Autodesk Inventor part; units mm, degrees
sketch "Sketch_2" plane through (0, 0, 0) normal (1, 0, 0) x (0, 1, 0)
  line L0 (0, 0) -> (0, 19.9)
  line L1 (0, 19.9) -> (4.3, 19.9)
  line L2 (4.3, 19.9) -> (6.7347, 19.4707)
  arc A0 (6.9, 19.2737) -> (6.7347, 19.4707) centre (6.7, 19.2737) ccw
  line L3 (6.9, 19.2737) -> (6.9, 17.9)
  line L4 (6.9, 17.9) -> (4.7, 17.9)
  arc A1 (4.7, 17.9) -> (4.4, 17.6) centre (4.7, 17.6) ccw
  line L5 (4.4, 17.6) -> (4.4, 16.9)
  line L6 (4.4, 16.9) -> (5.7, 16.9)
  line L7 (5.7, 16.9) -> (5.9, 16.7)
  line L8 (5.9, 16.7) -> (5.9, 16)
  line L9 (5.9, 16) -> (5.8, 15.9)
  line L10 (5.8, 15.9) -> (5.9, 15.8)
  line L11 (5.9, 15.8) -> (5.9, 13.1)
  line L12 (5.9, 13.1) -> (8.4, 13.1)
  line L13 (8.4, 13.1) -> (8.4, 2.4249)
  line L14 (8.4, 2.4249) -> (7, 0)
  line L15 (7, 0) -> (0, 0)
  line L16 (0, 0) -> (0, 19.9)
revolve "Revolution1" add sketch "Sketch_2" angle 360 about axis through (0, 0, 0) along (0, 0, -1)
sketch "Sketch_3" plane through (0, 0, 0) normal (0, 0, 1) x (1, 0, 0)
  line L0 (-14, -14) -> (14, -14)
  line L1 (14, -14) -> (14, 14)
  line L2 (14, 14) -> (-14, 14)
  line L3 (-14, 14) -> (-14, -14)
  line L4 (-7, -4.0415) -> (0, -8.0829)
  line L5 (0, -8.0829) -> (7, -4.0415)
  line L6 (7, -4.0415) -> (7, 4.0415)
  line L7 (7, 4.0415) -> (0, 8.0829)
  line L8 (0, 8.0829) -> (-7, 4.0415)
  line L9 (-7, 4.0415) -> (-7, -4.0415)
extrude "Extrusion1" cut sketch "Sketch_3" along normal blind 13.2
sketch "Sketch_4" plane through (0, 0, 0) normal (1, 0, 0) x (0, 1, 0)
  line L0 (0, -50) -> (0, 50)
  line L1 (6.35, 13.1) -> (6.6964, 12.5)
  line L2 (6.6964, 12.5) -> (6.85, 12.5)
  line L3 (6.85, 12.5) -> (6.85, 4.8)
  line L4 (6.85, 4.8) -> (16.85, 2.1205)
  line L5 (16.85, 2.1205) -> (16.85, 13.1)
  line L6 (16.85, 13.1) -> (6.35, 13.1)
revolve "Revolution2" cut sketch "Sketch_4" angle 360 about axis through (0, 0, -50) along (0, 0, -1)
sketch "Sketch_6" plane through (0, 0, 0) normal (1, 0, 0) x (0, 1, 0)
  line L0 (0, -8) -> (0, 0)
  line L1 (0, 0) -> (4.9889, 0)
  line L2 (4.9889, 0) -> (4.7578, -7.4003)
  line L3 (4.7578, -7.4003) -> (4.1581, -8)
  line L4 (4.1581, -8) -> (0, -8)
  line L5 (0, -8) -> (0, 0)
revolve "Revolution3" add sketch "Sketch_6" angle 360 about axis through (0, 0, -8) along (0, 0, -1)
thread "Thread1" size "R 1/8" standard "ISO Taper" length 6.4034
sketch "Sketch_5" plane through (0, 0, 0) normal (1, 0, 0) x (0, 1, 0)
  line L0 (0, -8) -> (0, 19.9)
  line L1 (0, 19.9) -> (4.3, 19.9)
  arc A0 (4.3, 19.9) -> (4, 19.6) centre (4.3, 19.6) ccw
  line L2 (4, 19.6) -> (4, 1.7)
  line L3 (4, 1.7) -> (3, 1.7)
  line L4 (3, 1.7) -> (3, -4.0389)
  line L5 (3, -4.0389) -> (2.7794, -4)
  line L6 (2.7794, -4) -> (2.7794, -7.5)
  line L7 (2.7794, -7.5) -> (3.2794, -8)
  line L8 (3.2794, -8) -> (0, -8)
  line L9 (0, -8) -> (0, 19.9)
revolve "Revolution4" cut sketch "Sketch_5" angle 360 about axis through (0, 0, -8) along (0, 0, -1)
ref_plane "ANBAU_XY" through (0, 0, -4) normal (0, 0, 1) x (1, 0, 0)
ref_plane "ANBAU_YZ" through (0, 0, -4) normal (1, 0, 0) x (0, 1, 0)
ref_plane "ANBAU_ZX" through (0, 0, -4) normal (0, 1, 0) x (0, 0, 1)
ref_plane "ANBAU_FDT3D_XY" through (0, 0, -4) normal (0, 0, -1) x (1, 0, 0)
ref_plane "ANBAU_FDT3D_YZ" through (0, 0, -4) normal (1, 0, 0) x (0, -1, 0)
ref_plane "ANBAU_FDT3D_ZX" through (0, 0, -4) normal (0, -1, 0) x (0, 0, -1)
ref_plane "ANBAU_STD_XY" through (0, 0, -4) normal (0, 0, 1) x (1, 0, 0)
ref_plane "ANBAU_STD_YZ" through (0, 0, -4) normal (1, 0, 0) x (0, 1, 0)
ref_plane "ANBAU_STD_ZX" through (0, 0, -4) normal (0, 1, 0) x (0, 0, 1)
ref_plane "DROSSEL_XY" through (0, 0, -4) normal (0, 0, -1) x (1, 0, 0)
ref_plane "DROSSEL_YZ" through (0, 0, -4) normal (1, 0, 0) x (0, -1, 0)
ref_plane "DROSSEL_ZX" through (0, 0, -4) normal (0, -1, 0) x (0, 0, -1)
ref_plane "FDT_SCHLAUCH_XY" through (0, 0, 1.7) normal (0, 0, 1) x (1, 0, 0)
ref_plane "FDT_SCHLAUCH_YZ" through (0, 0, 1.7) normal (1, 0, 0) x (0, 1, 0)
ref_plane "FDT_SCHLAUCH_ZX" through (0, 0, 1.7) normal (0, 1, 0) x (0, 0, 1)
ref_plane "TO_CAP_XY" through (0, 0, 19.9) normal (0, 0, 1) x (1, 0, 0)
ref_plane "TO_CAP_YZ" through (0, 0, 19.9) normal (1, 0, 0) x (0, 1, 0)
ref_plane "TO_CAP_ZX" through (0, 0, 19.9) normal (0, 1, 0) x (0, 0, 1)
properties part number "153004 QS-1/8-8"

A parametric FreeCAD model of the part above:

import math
import FreeCAD as App
import Part
import Sketcher
Q = App.Units.Quantity


def add_polygon(sketch, points):
    """Adds a closed chain of lines whose ends are joined by coincident constraints."""
    first, n = sketch.GeometryCount, len(points)
    for a, b in zip(points, points[1:] + points[:1]):
        sketch.addGeometry(Part.LineSegment(App.Vector(*a, 0), App.Vector(*b, 0)), False)
    for i in range(n):
        sketch.addConstraint(Sketcher.Constraint("Coincident", first + i, 2, first + (i + 1) % n, 1))

doc = App.newDocument("Part")
body = doc.addObject("PartDesign::Body", "Body")

# Sketch on YZ plane
sketch1 = body.newObject("Sketcher::SketchObject", "Sketch")
sketch1.AttachmentSupport = (doc.getObject("YZ_Plane"), [""])
sketch1.MapMode = "FlatFace"
sketch1.addGeometry([
    Part.LineSegment(App.Vector(0, 19.9, 0), App.Vector(0, 0, 0)),  # 0
    Part.LineSegment(App.Vector(0, 0, 0), App.Vector(7, 0, 0)),  # 1
    Part.LineSegment(App.Vector(7, 0, 0), App.Vector(8.4, 2.42, 0)),  # 2
    Part.LineSegment(App.Vector(8.4, 2.42, 0), App.Vector(8.4, 13.1, 0)),  # 3
    Part.LineSegment(App.Vector(8.4, 13.1, 0), App.Vector(5.9, 13.1, 0)),  # 4
    Part.LineSegment(App.Vector(5.9, 13.1, 0), App.Vector(5.9, 15.8, 0)),  # 5
    Part.LineSegment(App.Vector(5.9, 15.8, 0), App.Vector(5.8, 15.9, 0)),  # 6
    Part.LineSegment(App.Vector(5.8, 15.9, 0), App.Vector(5.9, 16, 0)),  # 7
    Part.LineSegment(App.Vector(5.9, 16, 0), App.Vector(5.9, 16.7, 0)),  # 8
    Part.LineSegment(App.Vector(5.9, 16.7, 0), App.Vector(5.7, 16.9, 0)),  # 9
    Part.LineSegment(App.Vector(5.7, 16.9, 0), App.Vector(4.4, 16.9, 0)),  # 10
    Part.LineSegment(App.Vector(4.4, 16.9, 0), App.Vector(4.4, 17.6, 0)),  # 11
    Part.ArcOfCircle(Part.Circle(App.Vector(4.7, 17.6, 0), App.Vector(0, 0, 1), 0.3), math.radians(90), math.radians(180)),  # 12
    Part.LineSegment(App.Vector(4.7, 17.9, 0), App.Vector(6.9, 17.9, 0)),  # 13
    Part.LineSegment(App.Vector(6.9, 17.9, 0), App.Vector(6.9, 19.27, 0)),  # 14
    Part.ArcOfCircle(Part.Circle(App.Vector(6.7, 19.27, 0), App.Vector(0, 0, 1), 0.2), math.radians(0), math.radians(80)),  # 15
    Part.LineSegment(App.Vector(6.73, 19.47, 0), App.Vector(4.3, 19.9, 0)),  # 16
    Part.LineSegment(App.Vector(4.3, 19.9, 0), App.Vector(0, 19.9, 0)),  # 17
], False)
sketch1.addConstraint([
    Sketcher.Constraint("Coincident", 0, 2, 1, 1),
    Sketcher.Constraint("Coincident", 1, 2, 2, 1),
    Sketcher.Constraint("Coincident", 2, 2, 3, 1),
    Sketcher.Constraint("Coincident", 3, 2, 4, 1),
    Sketcher.Constraint("Coincident", 4, 2, 5, 1),
    Sketcher.Constraint("Coincident", 5, 2, 6, 1),
    Sketcher.Constraint("Coincident", 6, 2, 7, 1),
    Sketcher.Constraint("Coincident", 7, 2, 8, 1),
    Sketcher.Constraint("Coincident", 8, 2, 9, 1),
    Sketcher.Constraint("Coincident", 9, 2, 10, 1),
    Sketcher.Constraint("Coincident", 10, 2, 11, 1),
    Sketcher.Constraint("Tangent", 11, 2, 12, 2),
    Sketcher.Constraint("Tangent", 12, 1, 13, 1),
    Sketcher.Constraint("Coincident", 13, 2, 14, 1),
    Sketcher.Constraint("Tangent", 14, 2, 15, 1),
    Sketcher.Constraint("Tangent", 15, 2, 16, 1),
    Sketcher.Constraint("Coincident", 16, 2, 17, 1),
    Sketcher.Constraint("Coincident", 17, 2, 0, 1),
    Sketcher.Constraint("Vertical", 0),
    Sketcher.Constraint("Horizontal", 1),
    Sketcher.Constraint("Vertical", 3),
    Sketcher.Constraint("Horizontal", 4),
    Sketcher.Constraint("Vertical", 5),
    Sketcher.Constraint("Vertical", 8),
    Sketcher.Constraint("Horizontal", 10),
    Sketcher.Constraint("Vertical", 11),
    Sketcher.Constraint("Horizontal", 13),
    Sketcher.Constraint("Vertical", 14),
    Sketcher.Constraint("Horizontal", 17),
    Sketcher.Constraint("Coincident", 0, 2, -1, 1),
    Sketcher.Constraint("Perpendicular", 6, 7),
    Sketcher.Constraint("Perpendicular", 7, 9),
    Sketcher.Constraint("Vertical", 5, 2, 7, 2),
    Sketcher.Constraint("Equal", 8, 11),
    Sketcher.Constraint("Equal", 6, 7),
    Sketcher.Constraint("Radius", 12, 0.3),
    Sketcher.Constraint("Radius", 15, 0.2),
    Sketcher.Constraint("DistanceX", 1, 1, 1, 2, 7.0),
    Sketcher.Constraint("Angle", 2, Q("60.0003 deg")),
    Sketcher.Constraint("Angle", 16, Q("170 deg")),
    Sketcher.Constraint("DistanceX", 4, 2, 4, 1, 2.5),
    Sketcher.Constraint("DistanceX", 10, 2, 10, 1, 1.3),
    Sketcher.Constraint("DistanceX", 13, 1, 13, 2, 2.2),
    Sketcher.Constraint("DistanceX", 17, 2, 17, 1, 4.3),
    Sketcher.Constraint("DistanceY", 0, 2, 0, 1, 19.9),
    Sketcher.Constraint("DistanceY", 5, 1, 5, 2, 2.7),
    Sketcher.Constraint("DistanceY", 8, 1, 8, 2, 0.7),
    Sketcher.Constraint("DistanceY", -1, 1, 7, 2, 16.0),
    Sketcher.Constraint("DistanceY", 6, 2, 9, 2, 1.0),
    Sketcher.Constraint("DistanceX", 8, 2, 13, 2, 1.0),
    Sketcher.Constraint("Distance", 2, 2.8),
])
revolution = body.newObject("PartDesign::Revolution", "Revolution")
revolution.Profile = sketch1
revolution.ReferenceAxis = (sketch1, ["V_Axis"])
revolution.Angle = 360

# Sketch on XY plane
sketch2 = body.newObject("Sketcher::SketchObject", "Sketch001")
sketch2.AttachmentSupport = (doc.getObject("XY_Plane"), [""])
sketch2.MapMode = "FlatFace"
add_polygon(sketch2, [(-14, 14), (-14, -14), (14, -14), (14, 14)])  # lines 0-3
add_polygon(sketch2, [(0, -8), (-7, -4), (-7, 4), (0, 8), (7, 4), (7, -4)])  # lines 4-9
sketch2.addConstraint([
    Sketcher.Constraint("Vertical", 0),
    Sketcher.Constraint("Horizontal", 1),
    Sketcher.Constraint("Vertical", 2),
    Sketcher.Constraint("Horizontal", 3),
    Sketcher.Constraint("Vertical", 5),
    Sketcher.Constraint("Vertical", 8),
    Sketcher.Constraint("Symmetric", 0, 2, 2, 2, -1, 1),
    Sketcher.Constraint("Symmetric", 4, 2, 7, 2, -1, 1),
    Sketcher.Constraint("Symmetric", 6, 2, 9, 2, -1, 1),
    Sketcher.Constraint("PointOnObject", 6, 2, -2),
    Sketcher.Constraint("Parallel", 6, 9),
    Sketcher.Constraint("Horizontal", 5, 2, 7, 2),
    Sketcher.Constraint("Equal", 3, 0),
    Sketcher.Constraint("DistanceX", 1, 1, 1, 2, 28.0),
    Sketcher.Constraint("Angle", 4, Q("150.0003 deg")),
    Sketcher.Constraint("DistanceX", 4, 2, -1, 1, 7.0),
    Sketcher.Constraint("DistanceY", 5, 1, 5, 2, 8.083),
])
pocket1 = body.newObject("PartDesign::Pocket", "Pocket")
pocket1.Profile = sketch2
pocket1.Length = 13.2
pocket1.Reversed = True

# Sketch on YZ plane
sketch3 = body.newObject("Sketcher::SketchObject", "Sketch002")
sketch3.AttachmentSupport = (doc.getObject("YZ_Plane"), [""])
sketch3.MapMode = "FlatFace"
add_polygon(sketch3, [(16.85, 13.1), (6.35, 13.1), (6.7, 12.5), (6.85, 12.5), (6.85, 4.8), (16.85, 2.12)])  # lines 0-5
sketch3.addConstraint([
    Sketcher.Constraint("Horizontal", 0),
    Sketcher.Constraint("Horizontal", 2),
    Sketcher.Constraint("Vertical", 3),
    Sketcher.Constraint("Vertical", 5),
    Sketcher.Constraint("Angle", 1, Q("-60.0007 deg")),
    Sketcher.Constraint("Angle", 4, Q("-15 deg")),
    Sketcher.Constraint("DistanceX", 0, 2, 0, 1, 10.5),
    Sketcher.Constraint("DistanceY", 3, 2, 3, 1, 7.7),
    Sketcher.Constraint("DistanceX", 3, 2, 4, 2, 10.0),
    Sketcher.Constraint("DistanceY", -1, 1, 0, 2, 13.1),
    Sketcher.Constraint("DistanceY", -1, 1, 1, 2, 12.5),
    Sketcher.Constraint("DistanceX", -1, 1, 0, 2, 6.35),
])
groove = body.newObject("PartDesign::Groove", "Groove")
groove.Profile = sketch3
groove.ReferenceAxis = (sketch3, ["V_Axis"])
groove.Angle = 360

# Sketch on YZ plane
sketch4 = body.newObject("Sketcher::SketchObject", "Sketch003")
sketch4.AttachmentSupport = (doc.getObject("YZ_Plane"), [""])
sketch4.MapMode = "FlatFace"
add_polygon(sketch4, [(0, 0), (0, -8), (4.2, -8), (4.8, -7.4), (5, 0)])  # lines 0-4
sketch4.addConstraint([
    Sketcher.Constraint("Vertical", 0),
    Sketcher.Constraint("Horizontal", 1),
    Sketcher.Constraint("Horizontal", 4),
    Sketcher.Constraint("Coincident", 4, 2, -1, 1),
    Sketcher.Constraint("DistanceY", 0, 2, 0, 1, 8.0),
    Sketcher.Constraint("Angle", 2, Q("45 deg")),
    Sketcher.Constraint("DistanceX", 1, 1, 1, 2, 4.158),
    Sketcher.Constraint("DistanceX", 4, 2, 4, 1, 4.989),
    Sketcher.Constraint("Distance", 2, 0.848),
])
revolution2 = body.newObject("PartDesign::Revolution", "Revolution001")
revolution2.Profile = sketch4
revolution2.ReferenceAxis = (sketch4, ["V_Axis"])
revolution2.Angle = 360

# Sketch on YZ plane
sketch5 = body.newObject("Sketcher::SketchObject", "Sketch004")
sketch5.AttachmentSupport = (doc.getObject("YZ_Plane"), [""])
sketch5.MapMode = "FlatFace"
sketch5.addGeometry([
    Part.LineSegment(App.Vector(0, 19.9, 0), App.Vector(0, -8, 0)),  # 0
    Part.LineSegment(App.Vector(0, -8, 0), App.Vector(3.28, -8, 0)),  # 1
    Part.LineSegment(App.Vector(3.28, -8, 0), App.Vector(2.78, -7.5, 0)),  # 2
    Part.LineSegment(App.Vector(2.78, -7.5, 0), App.Vector(2.78, -4, 0)),  # 3
    Part.LineSegment(App.Vector(2.78, -4, 0), App.Vector(3, -4.04, 0)),  # 4
    Part.LineSegment(App.Vector(3, -4.04, 0), App.Vector(3, 1.7, 0)),  # 5
    Part.LineSegment(App.Vector(3, 1.7, 0), App.Vector(4, 1.7, 0)),  # 6
    Part.LineSegment(App.Vector(4, 1.7, 0), App.Vector(4, 19.6, 0)),  # 7
    Part.ArcOfCircle(Part.Circle(App.Vector(4.3, 19.6, 0), App.Vector(0, 0, 1), 0.3), math.radians(90), math.radians(180)),  # 8
    Part.LineSegment(App.Vector(4.3, 19.9, 0), App.Vector(0, 19.9, 0)),  # 9
], False)
sketch5.addConstraint([
    Sketcher.Constraint("Coincident", 0, 2, 1, 1),
    Sketcher.Constraint("Coincident", 1, 2, 2, 1),
    Sketcher.Constraint("Coincident", 2, 2, 3, 1),
    Sketcher.Constraint("Coincident", 3, 2, 4, 1),
    Sketcher.Constraint("Coincident", 4, 2, 5, 1),
    Sketcher.Constraint("Coincident", 5, 2, 6, 1),
    Sketcher.Constraint("Coincident", 6, 2, 7, 1),
    Sketcher.Constraint("Tangent", 7, 2, 8, 2),
    Sketcher.Constraint("Tangent", 8, 1, 9, 1),
    Sketcher.Constraint("Coincident", 9, 2, 0, 1),
    Sketcher.Constraint("Vertical", 0),
    Sketcher.Constraint("Horizontal", 1),
    Sketcher.Constraint("Vertical", 3),
    Sketcher.Constraint("Vertical", 5),
    Sketcher.Constraint("Horizontal", 6),
    Sketcher.Constraint("Vertical", 7),
    Sketcher.Constraint("Horizontal", 9),
    Sketcher.Constraint("PointOnObject", 0, 2, -2),
    Sketcher.Constraint("Radius", 8, 0.3),
    Sketcher.Constraint("DistanceX", 6, 1, 6, 2, 1.0),
    Sketcher.Constraint("Angle", 2, Q("135 deg")),
    Sketcher.Constraint("Angle", 4, Q("-10.0006 deg")),
    Sketcher.Constraint("DistanceX", 9, 2, 9, 1, 4.3),
    Sketcher.Constraint("DistanceY", 0, 2, 0, 1, 27.9),
    Sketcher.Constraint("DistanceY", 3, 1, 3, 2, 3.5),
    Sketcher.Constraint("DistanceY", 7, 1, 7, 2, 17.9),
    Sketcher.Constraint("DistanceY", 0, 2, -1, 1, 8.0),
    Sketcher.Constraint("DistanceY", 3, 2, -1, 1, 4.0),
    Sketcher.Constraint("DistanceY", 5, 1, 5, 2, 5.739),
])
groove2 = body.newObject("PartDesign::Groove", "Groove001")
groove2.Profile = sketch5
groove2.ReferenceAxis = (sketch5, ["V_Axis"])
groove2.Angle = 360

doc.recompute()
